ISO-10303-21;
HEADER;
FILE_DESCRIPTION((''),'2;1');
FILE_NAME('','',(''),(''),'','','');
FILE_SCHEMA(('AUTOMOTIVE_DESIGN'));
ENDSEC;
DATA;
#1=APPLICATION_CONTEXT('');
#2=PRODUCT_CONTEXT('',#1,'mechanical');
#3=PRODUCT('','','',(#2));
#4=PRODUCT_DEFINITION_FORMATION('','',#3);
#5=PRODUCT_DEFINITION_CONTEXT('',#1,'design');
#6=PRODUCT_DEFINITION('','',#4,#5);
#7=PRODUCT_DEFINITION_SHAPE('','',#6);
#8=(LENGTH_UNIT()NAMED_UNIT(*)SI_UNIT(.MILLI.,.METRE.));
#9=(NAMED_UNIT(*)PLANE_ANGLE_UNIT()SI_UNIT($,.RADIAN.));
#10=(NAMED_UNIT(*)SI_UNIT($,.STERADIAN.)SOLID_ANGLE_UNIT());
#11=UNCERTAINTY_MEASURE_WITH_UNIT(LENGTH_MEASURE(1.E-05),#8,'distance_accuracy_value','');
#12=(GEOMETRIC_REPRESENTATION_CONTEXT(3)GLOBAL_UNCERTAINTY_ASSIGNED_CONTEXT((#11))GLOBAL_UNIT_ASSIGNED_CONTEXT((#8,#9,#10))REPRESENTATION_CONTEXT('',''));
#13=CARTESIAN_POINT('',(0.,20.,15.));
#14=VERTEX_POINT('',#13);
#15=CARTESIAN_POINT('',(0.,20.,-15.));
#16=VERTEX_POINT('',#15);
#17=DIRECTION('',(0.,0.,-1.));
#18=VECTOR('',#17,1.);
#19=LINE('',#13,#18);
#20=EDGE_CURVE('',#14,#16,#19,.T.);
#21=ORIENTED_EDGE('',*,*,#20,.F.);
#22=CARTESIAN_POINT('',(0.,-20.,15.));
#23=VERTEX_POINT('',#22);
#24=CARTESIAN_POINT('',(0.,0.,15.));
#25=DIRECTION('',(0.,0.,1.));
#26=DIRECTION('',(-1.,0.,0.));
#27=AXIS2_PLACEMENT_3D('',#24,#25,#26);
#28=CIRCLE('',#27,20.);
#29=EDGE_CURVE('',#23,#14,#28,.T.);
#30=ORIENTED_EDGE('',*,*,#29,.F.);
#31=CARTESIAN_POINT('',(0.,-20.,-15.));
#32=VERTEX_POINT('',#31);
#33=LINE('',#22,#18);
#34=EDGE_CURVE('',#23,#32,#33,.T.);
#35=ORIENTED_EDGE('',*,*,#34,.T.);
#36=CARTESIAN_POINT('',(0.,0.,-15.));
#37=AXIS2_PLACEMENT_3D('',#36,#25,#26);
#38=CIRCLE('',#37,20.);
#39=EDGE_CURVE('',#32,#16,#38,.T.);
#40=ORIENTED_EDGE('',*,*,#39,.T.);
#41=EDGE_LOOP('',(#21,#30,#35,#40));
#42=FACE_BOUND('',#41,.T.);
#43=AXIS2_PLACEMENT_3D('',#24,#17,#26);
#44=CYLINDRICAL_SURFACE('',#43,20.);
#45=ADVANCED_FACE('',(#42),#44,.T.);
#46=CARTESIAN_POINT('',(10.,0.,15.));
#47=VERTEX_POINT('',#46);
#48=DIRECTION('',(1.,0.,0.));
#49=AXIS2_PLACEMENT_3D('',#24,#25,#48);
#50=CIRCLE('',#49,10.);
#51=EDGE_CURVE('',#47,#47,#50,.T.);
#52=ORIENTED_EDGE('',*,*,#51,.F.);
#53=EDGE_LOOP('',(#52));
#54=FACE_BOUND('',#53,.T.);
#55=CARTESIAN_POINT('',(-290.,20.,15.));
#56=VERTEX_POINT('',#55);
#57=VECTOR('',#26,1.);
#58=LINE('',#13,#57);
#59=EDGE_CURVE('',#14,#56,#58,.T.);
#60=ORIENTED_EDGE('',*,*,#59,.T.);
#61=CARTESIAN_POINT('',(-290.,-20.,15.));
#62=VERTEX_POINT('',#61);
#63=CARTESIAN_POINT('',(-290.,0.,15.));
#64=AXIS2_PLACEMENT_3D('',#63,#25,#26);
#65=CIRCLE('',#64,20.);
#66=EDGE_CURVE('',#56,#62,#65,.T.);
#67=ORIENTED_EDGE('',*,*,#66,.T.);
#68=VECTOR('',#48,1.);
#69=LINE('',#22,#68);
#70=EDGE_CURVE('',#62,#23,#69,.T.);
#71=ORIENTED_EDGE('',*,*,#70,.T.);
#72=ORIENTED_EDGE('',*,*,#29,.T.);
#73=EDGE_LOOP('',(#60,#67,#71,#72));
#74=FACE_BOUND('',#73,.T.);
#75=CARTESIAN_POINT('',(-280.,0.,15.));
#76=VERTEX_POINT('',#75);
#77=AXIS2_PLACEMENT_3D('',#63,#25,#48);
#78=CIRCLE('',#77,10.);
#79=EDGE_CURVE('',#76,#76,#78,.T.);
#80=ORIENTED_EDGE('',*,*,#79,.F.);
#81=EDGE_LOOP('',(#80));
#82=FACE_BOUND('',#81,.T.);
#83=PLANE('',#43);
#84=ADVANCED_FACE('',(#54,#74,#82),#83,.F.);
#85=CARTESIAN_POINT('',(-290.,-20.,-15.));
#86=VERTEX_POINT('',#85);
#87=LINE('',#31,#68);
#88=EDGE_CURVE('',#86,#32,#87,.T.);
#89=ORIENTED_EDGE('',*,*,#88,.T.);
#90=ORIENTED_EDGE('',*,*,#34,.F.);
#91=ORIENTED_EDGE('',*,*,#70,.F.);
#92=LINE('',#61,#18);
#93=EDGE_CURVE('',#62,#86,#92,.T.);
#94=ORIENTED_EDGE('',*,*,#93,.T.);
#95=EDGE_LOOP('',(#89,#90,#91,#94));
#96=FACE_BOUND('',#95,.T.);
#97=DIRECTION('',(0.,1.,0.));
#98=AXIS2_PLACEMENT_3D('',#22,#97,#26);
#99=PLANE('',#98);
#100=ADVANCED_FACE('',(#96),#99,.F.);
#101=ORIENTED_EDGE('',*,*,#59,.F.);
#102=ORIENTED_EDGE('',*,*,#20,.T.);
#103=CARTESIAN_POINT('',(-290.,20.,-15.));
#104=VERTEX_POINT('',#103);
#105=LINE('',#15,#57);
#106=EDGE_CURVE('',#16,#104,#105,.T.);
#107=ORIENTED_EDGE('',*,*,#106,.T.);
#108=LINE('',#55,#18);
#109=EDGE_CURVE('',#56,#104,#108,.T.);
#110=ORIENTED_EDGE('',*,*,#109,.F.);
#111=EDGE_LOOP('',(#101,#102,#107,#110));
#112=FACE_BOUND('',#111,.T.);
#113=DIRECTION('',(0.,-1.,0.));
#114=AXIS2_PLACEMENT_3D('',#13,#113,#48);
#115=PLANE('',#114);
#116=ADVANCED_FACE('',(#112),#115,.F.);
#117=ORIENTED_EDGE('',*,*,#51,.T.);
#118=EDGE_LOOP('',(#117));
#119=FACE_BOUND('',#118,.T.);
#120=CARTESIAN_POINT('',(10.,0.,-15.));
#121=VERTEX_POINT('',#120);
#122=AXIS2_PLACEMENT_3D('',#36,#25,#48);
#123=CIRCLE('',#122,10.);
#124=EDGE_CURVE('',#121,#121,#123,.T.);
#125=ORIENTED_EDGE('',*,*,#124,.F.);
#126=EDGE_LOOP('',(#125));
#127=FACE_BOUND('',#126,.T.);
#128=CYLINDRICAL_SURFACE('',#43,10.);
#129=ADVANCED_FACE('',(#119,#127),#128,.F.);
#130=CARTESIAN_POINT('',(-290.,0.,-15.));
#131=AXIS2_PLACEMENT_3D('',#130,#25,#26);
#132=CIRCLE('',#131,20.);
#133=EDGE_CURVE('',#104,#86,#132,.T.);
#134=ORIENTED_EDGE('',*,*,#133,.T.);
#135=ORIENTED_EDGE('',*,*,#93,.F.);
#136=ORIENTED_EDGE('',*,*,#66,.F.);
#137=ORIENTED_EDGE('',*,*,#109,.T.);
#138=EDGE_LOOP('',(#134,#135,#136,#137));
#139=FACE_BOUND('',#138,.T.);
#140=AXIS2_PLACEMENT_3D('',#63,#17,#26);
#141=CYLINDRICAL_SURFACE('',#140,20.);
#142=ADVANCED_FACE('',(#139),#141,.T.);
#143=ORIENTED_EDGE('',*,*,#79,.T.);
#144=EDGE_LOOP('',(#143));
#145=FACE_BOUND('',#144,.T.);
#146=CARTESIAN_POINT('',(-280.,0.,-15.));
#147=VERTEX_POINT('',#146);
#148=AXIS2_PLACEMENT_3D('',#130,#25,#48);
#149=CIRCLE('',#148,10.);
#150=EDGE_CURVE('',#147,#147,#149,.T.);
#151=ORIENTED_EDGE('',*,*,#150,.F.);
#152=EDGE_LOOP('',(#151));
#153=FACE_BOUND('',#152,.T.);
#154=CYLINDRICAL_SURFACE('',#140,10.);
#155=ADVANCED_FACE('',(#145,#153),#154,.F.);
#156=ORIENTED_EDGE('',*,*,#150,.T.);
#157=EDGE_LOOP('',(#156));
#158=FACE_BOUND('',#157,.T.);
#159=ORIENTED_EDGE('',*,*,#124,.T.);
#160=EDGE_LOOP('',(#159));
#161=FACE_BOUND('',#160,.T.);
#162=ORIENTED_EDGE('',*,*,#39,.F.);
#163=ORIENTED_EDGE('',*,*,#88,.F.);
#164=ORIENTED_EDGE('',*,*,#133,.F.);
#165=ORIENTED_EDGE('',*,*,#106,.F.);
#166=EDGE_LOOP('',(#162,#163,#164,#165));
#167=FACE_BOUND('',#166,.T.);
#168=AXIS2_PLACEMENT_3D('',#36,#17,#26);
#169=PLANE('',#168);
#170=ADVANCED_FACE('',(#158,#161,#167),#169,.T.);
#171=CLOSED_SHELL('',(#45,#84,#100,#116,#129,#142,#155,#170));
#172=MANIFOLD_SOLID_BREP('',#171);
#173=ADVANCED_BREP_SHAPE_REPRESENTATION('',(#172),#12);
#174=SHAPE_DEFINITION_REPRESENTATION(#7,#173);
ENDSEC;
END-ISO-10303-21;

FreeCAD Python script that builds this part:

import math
import FreeCAD as App
import Part
import Sketcher
Q = App.Units.Quantity

doc = App.newDocument("Part")
body = doc.addObject("PartDesign::Body", "Body")

# Sketch on XY plane
sketch1 = body.newObject("Sketcher::SketchObject", "Sketch")
sketch1.AttachmentSupport = (doc.getObject("XY_Plane"), [""])
sketch1.MapMode = "FlatFace"
sketch1.addGeometry([
    Part.LineSegment(App.Vector(0, 20, 0), App.Vector(-290, 20, 0)),  # 0
    Part.ArcOfCircle(Part.Circle(App.Vector(-290, 0, 0), App.Vector(0, 0, 1), 20), math.radians(90), math.radians(270)),  # 1
    Part.LineSegment(App.Vector(-290, -20, 0), App.Vector(0, -20, 0)),  # 2
    Part.ArcOfCircle(Part.Circle(App.Vector(0, 0, 0), App.Vector(0, 0, 1), 20), math.radians(-90), math.radians(90)),  # 3
    Part.Circle(App.Vector(-290, 0, 0), App.Vector(0, 0, 1), 10),  # 4
    Part.Circle(App.Vector(0, 0, 0), App.Vector(0, 0, 1), 10),  # 5
], False)
sketch1.addConstraint([
    Sketcher.Constraint("Tangent", 0, 2, 1, 1),
    Sketcher.Constraint("Tangent", 1, 2, 2, 1),
    Sketcher.Constraint("Tangent", 2, 2, 3, 1),
    Sketcher.Constraint("Tangent", 3, 2, 0, 1),
    Sketcher.Constraint("Horizontal", 0),
    Sketcher.Constraint("Horizontal", 2),
    Sketcher.Constraint("Coincident", 3, 3, -1, 1),
    Sketcher.Constraint("Coincident", 5, 3, -1, 1),
    Sketcher.Constraint("Coincident", 4, 3, 1, 3),
    Sketcher.Constraint("Equal", 4, 5),
    Sketcher.Constraint("Diameter", 4, Q("20 mm")),
    Sketcher.Constraint("Radius", 1, Q("20 mm")),
    Sketcher.Constraint("DistanceX", 0, 2, 0, 1, Q("290 mm")),
])
pad1 = body.newObject("PartDesign::Pad", "Pad")
pad1.Profile = sketch1
pad1.Length = 30
pad1.Midplane = True

doc.recompute()
